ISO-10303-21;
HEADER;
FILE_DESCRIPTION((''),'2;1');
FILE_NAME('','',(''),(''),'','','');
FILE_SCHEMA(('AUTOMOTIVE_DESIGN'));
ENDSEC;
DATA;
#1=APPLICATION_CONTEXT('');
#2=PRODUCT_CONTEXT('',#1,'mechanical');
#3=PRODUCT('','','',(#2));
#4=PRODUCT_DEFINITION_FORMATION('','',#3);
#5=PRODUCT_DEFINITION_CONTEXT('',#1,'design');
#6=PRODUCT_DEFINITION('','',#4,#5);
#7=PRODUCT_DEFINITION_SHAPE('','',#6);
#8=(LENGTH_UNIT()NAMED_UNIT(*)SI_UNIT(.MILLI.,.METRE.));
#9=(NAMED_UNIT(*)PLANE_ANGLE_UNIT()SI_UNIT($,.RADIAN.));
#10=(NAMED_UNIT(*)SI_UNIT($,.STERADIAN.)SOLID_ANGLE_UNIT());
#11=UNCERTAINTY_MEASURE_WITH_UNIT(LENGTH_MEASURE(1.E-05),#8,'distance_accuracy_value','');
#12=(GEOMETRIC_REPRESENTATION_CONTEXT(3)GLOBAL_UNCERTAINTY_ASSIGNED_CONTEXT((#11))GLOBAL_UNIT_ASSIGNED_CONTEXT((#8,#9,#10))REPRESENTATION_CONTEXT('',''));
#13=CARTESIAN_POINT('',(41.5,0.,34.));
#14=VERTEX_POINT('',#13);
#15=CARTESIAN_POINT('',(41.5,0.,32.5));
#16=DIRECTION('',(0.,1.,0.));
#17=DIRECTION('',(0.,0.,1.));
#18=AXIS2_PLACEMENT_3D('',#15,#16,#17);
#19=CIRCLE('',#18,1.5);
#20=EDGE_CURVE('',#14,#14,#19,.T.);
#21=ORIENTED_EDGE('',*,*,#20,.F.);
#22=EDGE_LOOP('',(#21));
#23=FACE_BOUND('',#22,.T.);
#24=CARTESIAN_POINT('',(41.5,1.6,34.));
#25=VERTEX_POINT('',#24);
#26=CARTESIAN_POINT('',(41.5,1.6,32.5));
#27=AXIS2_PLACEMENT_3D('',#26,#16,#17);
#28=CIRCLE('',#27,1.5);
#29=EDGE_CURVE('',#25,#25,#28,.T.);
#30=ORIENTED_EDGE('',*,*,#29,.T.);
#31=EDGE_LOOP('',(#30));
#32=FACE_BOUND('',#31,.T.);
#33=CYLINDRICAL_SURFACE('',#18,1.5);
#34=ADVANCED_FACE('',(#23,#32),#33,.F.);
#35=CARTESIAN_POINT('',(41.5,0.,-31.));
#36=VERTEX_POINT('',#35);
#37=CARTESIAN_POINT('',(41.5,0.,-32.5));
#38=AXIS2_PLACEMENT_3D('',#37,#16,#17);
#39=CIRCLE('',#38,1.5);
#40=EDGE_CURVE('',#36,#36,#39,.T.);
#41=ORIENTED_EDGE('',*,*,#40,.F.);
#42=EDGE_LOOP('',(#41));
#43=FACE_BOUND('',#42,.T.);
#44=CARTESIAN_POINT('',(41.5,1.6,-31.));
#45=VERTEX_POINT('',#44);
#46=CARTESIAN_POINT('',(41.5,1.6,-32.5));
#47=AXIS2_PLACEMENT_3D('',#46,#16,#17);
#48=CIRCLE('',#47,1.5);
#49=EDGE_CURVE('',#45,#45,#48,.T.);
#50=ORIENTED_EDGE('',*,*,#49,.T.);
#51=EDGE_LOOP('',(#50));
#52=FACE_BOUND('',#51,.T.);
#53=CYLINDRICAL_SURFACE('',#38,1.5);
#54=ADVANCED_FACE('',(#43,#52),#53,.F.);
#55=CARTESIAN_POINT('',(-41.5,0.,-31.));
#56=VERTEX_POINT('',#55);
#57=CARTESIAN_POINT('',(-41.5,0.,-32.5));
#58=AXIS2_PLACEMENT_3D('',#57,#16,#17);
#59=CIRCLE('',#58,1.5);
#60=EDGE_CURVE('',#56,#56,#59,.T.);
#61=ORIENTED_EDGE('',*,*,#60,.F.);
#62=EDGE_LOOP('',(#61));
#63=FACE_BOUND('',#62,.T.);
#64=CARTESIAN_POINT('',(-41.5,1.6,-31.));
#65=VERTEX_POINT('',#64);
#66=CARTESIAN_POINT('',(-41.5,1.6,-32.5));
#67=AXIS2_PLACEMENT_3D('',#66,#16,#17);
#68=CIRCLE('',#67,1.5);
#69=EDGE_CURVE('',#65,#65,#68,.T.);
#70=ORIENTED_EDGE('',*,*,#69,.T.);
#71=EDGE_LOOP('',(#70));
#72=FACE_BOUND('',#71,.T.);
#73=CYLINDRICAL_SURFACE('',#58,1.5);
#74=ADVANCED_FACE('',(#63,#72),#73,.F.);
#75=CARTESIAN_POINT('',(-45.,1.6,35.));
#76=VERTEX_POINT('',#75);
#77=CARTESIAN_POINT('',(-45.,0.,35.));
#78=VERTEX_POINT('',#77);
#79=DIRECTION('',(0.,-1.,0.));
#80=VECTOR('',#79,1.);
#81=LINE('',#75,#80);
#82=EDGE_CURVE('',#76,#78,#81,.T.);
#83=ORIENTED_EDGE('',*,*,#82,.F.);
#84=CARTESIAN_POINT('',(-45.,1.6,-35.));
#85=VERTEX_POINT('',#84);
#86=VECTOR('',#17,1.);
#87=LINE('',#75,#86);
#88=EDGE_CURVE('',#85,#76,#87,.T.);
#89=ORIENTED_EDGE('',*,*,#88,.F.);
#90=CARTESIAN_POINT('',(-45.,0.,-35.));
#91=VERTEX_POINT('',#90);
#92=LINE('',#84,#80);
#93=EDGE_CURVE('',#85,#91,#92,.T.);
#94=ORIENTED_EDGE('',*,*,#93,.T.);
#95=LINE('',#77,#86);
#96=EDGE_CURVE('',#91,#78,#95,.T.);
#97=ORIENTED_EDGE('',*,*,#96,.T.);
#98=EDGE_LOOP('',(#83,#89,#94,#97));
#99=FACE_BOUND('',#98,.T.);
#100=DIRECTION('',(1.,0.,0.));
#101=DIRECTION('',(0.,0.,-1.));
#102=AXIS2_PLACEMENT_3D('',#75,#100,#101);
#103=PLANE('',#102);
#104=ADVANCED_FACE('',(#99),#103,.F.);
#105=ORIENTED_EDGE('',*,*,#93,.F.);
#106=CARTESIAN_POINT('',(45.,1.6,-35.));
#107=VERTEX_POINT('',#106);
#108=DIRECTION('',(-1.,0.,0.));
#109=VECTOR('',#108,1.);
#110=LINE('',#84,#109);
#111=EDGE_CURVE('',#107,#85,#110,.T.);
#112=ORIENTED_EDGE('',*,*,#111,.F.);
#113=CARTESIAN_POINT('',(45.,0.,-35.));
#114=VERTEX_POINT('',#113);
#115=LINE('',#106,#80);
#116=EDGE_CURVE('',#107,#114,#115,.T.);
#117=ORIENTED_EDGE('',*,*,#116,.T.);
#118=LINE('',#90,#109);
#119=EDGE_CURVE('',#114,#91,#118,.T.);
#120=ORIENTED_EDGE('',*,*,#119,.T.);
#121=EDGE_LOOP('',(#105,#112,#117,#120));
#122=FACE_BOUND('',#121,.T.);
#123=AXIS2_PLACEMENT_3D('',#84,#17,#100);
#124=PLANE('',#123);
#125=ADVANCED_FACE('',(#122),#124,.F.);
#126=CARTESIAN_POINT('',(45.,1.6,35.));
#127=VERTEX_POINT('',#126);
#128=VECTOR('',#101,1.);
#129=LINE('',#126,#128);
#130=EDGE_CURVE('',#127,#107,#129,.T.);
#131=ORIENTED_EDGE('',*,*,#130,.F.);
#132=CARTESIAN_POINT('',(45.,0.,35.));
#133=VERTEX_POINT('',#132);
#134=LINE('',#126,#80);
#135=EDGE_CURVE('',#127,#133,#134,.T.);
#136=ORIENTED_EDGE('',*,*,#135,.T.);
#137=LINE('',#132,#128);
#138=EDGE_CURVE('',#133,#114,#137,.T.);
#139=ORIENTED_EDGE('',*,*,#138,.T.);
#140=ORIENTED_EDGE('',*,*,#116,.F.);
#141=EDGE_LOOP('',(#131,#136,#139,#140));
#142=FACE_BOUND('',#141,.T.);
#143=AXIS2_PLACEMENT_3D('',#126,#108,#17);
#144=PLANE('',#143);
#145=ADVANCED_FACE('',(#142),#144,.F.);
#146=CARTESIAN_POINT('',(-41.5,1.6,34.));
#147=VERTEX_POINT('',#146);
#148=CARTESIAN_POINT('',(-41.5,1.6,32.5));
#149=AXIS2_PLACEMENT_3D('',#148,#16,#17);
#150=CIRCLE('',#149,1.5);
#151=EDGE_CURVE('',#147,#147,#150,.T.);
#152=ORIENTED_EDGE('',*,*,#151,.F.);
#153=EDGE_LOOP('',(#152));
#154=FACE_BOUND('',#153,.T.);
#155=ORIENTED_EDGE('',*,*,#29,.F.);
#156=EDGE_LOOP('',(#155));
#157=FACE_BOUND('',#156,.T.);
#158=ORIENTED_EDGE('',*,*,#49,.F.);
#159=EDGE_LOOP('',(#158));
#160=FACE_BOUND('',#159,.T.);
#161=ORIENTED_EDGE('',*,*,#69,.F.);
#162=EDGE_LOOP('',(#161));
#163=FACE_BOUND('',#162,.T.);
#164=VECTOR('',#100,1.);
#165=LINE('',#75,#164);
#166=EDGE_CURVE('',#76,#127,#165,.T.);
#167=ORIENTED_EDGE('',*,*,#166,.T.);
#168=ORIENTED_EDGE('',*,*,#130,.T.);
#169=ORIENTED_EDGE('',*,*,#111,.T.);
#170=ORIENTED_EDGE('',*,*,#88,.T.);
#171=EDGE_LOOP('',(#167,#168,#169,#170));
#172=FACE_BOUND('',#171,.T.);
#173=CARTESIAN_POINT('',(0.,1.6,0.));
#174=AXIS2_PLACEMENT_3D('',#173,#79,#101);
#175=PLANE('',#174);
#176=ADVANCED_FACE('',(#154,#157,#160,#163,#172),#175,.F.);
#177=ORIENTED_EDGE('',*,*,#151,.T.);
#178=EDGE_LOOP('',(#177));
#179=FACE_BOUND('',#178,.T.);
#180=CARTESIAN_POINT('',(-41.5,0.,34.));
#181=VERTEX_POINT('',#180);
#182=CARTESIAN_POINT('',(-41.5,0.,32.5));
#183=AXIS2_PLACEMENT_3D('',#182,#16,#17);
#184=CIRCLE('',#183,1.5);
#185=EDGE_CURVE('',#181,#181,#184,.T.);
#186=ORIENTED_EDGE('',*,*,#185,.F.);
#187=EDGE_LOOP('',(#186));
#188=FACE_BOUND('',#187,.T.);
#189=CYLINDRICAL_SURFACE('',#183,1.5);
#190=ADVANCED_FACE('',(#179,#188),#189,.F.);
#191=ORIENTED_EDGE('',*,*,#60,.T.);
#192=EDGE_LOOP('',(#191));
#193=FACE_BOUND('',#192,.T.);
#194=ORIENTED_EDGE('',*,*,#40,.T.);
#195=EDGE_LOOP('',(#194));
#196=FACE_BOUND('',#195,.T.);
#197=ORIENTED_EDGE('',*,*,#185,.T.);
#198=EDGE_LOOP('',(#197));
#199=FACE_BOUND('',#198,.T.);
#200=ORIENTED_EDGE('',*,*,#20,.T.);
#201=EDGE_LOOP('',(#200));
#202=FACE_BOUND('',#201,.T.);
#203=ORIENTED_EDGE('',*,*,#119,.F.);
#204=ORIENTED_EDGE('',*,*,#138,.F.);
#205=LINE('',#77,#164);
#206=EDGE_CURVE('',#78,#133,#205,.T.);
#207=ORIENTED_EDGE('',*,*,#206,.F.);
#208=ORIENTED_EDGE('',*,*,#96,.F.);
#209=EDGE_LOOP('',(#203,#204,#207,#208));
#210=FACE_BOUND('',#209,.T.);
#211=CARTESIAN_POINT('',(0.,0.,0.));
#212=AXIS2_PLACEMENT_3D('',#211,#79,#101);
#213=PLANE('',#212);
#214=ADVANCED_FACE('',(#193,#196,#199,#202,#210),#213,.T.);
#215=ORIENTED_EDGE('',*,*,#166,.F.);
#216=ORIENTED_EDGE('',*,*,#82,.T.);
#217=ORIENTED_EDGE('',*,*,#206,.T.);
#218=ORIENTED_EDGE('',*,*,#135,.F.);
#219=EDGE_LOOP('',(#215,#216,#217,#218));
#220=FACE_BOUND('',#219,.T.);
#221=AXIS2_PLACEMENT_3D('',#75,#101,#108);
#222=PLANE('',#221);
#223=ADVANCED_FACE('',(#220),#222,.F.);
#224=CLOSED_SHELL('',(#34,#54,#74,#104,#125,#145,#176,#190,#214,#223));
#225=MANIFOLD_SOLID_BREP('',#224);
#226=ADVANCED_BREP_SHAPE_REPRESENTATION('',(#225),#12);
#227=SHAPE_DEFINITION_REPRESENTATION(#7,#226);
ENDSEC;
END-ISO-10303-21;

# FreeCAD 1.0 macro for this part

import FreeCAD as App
import Part
import Sketcher
Q = App.Units.Quantity


def add_polygon(sketch, points):
    """Adds a closed chain of lines whose ends are joined by coincident constraints."""
    first, n = sketch.GeometryCount, len(points)
    for a, b in zip(points, points[1:] + points[:1]):
        sketch.addGeometry(Part.LineSegment(App.Vector(*a, 0), App.Vector(*b, 0)), False)
    for i in range(n):
        sketch.addConstraint(Sketcher.Constraint("Coincident", first + i, 2, first + (i + 1) % n, 1))

doc = App.newDocument("Part")
params = doc.addObject("Spreadsheet::Sheet", "Params")
for row, (alias, value) in enumerate([
    ("sketch1_width", "90 mm"),
    ("sketch1_height", "70 mm"),
    ("pad1_length", "1.6 mm"),
    ("sketch2_diameter", "3 mm"),
    ("pocket1_length", "1.6 mm"),
], start=1):
    params.set(f"A{row}", alias)
    params.set(f"B{row}", "=" + value)
    params.setAlias(f"B{row}", alias)

body = doc.addObject("PartDesign::Body", "Body")

# Sketch on XZ plane
sketch1 = body.newObject("Sketcher::SketchObject", "Sketch")
sketch1.AttachmentSupport = (doc.getObject("XZ_Plane"), [""])
sketch1.MapMode = "FlatFace"
add_polygon(sketch1, [(-45, -35), (-45, 35), (45, 35), (45, -35)])  # lines 0-3
sketch1.addConstraint([
    Sketcher.Constraint("Vertical", 0),
    Sketcher.Constraint("Horizontal", 1),
    Sketcher.Constraint("Vertical", 2),
    Sketcher.Constraint("Horizontal", 3),
    Sketcher.Constraint("Symmetric", 0, 2, 2, 2, -1, 1),
    Sketcher.Constraint("DistanceX", 1, 1, 1, 2, Q("90 mm")),
    Sketcher.Constraint("DistanceY", 0, 1, 0, 2, Q("70 mm")),
])
sketch1.setExpression("Constraints[9]", "Params.sketch1_width")
sketch1.setExpression("Constraints[10]", "Params.sketch1_height")
pad1 = body.newObject("PartDesign::Pad", "Pad")
pad1.Profile = sketch1
pad1.setExpression("Length", "Params.pad1_length")
pad1.Reversed = True

# Sketch on XZ plane
sketch2 = body.newObject("Sketcher::SketchObject", "Sketch001")
sketch2.AttachmentSupport = (doc.getObject("XZ_Plane"), [""])
sketch2.MapMode = "FlatFace"
sketch2.AttachmentOffset = App.Placement(App.Vector(0, 0, -1.6), App.Rotation())
sketch2.addGeometry([
    Part.Circle(App.Vector(-41.5, -32.5, 0), App.Vector(0, 0, 1), 1.5),
    Part.Circle(App.Vector(41.5, -32.5, 0), App.Vector(0, 0, 1), 1.5),
    Part.Circle(App.Vector(41.5, 32.5, 0), App.Vector(0, 0, 1), 1.5),
    Part.Circle(App.Vector(-41.5, 32.5, 0), App.Vector(0, 0, 1), 1.5),
], False)
sketch2.addConstraint([
    Sketcher.Constraint("Equal", 0, 1),
    Sketcher.Constraint("Equal", 1, 2),
    Sketcher.Constraint("Equal", 2, 3),
    Sketcher.Constraint("Symmetric", 0, 3, 2, 3, -1, 1),
    Sketcher.Constraint("Symmetric", 1, 3, 3, 3, -1, 1),
    Sketcher.Constraint("Symmetric", 0, 3, 1, 3, -2),
    Sketcher.Constraint("Diameter", 0, Q("3 mm")),
    Sketcher.Constraint("DistanceX", 0, 3, 1, 3, Q("83 mm")),
    Sketcher.Constraint("DistanceY", 1, 3, 2, 3, Q("65 mm")),
])
sketch2.setExpression("Constraints[6]", "Params.sketch2_diameter")
pocket1 = body.newObject("PartDesign::Pocket", "Pocket")
pocket1.Profile = sketch2
pocket1.setExpression("Length", "Params.pocket1_length")
pocket1.Reversed = True

doc.recompute()
